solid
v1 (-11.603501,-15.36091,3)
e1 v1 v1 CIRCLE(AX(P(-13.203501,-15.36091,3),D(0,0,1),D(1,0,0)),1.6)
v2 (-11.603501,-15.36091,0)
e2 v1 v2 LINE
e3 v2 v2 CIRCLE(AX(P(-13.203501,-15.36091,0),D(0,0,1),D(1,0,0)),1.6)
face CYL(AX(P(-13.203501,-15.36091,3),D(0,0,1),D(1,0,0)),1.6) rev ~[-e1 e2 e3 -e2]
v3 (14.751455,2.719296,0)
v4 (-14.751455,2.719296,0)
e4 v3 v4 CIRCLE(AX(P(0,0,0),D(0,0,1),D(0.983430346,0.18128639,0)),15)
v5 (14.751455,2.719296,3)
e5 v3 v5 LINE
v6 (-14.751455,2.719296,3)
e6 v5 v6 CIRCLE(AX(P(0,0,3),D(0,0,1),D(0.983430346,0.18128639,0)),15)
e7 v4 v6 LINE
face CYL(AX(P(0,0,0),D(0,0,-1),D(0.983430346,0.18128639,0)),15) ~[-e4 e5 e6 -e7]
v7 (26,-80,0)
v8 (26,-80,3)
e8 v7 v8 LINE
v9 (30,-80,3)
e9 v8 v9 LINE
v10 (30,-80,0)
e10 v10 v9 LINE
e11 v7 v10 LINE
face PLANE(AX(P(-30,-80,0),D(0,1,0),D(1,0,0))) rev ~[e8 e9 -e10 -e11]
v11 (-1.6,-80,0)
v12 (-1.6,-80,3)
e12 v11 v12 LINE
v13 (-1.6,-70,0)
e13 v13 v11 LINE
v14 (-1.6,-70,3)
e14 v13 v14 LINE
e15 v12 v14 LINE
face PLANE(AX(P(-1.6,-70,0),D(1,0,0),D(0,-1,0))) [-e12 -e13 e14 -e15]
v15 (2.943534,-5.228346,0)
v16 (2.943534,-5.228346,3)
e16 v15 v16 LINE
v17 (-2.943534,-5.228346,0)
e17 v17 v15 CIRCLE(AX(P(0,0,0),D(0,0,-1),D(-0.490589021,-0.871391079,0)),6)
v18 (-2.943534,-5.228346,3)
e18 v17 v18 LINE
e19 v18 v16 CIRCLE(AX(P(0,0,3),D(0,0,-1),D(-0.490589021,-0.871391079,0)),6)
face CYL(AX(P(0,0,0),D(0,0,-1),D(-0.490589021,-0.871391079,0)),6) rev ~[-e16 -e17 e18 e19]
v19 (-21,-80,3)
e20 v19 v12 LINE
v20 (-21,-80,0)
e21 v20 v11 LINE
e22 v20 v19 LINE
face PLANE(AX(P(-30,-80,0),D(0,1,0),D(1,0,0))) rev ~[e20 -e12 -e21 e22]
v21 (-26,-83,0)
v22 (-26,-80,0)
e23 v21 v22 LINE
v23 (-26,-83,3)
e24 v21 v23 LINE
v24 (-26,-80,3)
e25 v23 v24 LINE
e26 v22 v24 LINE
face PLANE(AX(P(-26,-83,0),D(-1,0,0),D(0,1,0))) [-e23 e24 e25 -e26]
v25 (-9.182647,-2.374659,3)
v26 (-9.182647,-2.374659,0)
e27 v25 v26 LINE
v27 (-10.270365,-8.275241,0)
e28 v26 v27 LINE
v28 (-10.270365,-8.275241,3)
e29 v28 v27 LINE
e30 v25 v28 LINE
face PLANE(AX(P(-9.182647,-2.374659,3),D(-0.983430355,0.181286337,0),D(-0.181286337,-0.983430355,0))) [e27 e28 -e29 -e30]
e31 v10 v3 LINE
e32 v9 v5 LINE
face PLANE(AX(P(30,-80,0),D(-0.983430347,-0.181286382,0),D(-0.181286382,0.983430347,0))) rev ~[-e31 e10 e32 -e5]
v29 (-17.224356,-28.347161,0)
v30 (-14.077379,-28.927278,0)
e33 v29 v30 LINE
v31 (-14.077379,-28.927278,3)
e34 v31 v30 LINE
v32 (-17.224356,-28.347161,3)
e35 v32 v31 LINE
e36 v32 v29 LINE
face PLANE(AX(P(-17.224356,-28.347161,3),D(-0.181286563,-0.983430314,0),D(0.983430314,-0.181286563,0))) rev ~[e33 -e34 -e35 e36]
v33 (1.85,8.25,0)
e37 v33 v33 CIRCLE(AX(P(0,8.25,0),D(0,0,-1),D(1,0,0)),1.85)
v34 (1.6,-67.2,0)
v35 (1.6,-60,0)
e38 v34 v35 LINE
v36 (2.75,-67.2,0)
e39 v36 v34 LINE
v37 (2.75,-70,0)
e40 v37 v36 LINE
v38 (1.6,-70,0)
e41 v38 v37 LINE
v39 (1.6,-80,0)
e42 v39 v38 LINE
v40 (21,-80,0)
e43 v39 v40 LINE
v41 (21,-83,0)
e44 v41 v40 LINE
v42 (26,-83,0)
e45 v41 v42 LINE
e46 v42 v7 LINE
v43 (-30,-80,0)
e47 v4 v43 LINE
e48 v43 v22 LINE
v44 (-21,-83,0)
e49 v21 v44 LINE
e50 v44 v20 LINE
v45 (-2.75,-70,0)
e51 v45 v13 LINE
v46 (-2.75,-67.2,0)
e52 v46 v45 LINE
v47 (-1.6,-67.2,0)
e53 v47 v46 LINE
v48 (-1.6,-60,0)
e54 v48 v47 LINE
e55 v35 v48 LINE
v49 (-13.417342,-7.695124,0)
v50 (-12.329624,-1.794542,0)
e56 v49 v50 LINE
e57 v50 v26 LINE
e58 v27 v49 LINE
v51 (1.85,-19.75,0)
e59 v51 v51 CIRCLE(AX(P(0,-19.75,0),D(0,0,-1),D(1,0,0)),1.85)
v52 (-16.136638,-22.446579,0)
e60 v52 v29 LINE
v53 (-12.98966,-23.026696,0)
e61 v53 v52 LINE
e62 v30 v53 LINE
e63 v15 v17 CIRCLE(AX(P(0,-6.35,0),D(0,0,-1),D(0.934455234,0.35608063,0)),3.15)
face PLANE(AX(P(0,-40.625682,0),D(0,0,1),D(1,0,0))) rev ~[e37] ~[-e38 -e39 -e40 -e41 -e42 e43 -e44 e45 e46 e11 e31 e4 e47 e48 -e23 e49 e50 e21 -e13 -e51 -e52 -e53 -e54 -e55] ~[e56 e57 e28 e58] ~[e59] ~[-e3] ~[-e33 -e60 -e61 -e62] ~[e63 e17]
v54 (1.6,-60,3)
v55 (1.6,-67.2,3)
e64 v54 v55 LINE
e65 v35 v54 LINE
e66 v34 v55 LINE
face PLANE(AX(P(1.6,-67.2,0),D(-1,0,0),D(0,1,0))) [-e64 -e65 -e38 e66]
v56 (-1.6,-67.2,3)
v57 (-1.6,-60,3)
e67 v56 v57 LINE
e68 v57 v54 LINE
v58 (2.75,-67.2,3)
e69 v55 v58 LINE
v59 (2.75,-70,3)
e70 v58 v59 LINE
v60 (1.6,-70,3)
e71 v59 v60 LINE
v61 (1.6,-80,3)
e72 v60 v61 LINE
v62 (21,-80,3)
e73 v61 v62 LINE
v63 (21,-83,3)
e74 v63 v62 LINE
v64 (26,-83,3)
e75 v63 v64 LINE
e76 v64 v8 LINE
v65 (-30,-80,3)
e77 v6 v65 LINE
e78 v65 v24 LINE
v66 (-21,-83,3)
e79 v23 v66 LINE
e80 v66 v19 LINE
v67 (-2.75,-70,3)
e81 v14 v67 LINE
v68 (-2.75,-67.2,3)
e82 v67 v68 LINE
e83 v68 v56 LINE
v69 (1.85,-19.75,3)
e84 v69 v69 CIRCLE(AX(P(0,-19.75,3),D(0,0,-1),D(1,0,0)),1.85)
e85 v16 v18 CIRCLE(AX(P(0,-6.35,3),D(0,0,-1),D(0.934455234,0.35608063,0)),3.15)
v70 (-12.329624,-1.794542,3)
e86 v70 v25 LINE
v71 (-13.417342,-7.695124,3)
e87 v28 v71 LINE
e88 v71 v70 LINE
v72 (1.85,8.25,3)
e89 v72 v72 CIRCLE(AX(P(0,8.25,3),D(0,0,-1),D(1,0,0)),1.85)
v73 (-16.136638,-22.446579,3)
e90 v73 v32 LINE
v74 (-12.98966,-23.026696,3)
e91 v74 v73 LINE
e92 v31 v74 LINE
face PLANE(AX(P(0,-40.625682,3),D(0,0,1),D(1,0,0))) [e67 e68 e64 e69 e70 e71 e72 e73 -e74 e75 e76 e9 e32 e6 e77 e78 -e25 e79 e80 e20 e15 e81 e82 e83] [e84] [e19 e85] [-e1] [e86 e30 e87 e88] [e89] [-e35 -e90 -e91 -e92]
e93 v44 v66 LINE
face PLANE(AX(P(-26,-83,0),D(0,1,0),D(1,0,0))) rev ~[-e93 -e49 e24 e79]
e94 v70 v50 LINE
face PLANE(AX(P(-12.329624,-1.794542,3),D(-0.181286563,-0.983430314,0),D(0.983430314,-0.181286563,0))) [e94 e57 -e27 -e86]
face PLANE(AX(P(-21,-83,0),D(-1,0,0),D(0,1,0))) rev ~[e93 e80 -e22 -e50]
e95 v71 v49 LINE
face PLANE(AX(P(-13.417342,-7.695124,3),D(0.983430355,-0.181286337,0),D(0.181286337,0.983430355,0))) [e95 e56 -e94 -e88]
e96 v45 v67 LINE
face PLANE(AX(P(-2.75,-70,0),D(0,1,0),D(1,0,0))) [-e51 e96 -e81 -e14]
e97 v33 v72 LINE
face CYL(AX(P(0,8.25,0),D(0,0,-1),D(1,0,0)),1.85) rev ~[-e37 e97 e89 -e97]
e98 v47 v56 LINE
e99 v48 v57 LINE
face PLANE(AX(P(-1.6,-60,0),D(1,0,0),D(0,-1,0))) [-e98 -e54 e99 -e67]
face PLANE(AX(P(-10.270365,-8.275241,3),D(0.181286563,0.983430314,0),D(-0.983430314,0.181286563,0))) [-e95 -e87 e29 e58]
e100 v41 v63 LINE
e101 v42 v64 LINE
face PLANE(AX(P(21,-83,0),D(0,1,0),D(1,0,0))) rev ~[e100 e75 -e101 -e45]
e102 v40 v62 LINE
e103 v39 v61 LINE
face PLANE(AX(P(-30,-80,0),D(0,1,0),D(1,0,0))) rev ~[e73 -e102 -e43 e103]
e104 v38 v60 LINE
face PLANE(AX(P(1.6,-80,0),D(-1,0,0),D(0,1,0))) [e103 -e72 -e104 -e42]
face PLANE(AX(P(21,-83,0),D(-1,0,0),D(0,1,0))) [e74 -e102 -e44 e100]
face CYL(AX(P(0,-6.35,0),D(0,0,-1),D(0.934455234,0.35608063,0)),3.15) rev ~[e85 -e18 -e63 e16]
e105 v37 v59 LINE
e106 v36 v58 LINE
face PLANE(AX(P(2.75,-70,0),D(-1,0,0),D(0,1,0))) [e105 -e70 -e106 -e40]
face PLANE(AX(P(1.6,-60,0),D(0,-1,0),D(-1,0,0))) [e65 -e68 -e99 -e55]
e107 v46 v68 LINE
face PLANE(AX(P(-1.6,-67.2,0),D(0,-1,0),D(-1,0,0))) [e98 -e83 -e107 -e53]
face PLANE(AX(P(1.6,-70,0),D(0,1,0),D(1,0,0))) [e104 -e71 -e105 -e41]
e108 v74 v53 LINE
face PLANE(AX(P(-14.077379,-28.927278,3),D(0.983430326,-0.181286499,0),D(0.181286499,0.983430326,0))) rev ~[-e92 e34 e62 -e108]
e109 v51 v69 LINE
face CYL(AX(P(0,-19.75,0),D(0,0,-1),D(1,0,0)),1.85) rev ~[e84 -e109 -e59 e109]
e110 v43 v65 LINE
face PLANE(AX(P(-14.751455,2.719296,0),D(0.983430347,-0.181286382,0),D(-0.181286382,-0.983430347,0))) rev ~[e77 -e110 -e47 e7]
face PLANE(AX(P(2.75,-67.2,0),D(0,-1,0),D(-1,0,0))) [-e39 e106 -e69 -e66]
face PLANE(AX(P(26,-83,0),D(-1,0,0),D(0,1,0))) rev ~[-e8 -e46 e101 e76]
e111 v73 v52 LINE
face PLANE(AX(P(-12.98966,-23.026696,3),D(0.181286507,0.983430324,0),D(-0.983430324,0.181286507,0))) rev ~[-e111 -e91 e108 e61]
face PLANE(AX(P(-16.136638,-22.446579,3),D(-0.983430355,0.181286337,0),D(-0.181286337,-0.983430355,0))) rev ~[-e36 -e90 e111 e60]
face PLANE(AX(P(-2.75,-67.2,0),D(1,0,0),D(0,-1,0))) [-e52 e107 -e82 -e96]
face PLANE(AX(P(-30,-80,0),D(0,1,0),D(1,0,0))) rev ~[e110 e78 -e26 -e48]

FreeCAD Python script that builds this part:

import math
import FreeCAD as App
import Part
import Sketcher
from FreeCAD import Vector
Q = App.Units.Quantity

doc = App.newDocument("Part")
body = doc.addObject("PartDesign::Body", "Body")

# Sketch on XY plane
sketch1 = doc.addObject("Sketcher::SketchObject", "Sketch")
body.addObject(sketch1)
sketch1.AttachmentSupport = (doc.XY_Plane, [""])
sketch1.MapMode = "FlatFace"
sketch1.addGeometry([
    Part.ArcOfCircle(Part.Circle(Vector(0, 0, 0), Vector(0, 0, 1), 15), math.radians(10), math.radians(170)),
    Part.LineSegment(Vector(-15, 3, 0), Vector(-30, -80, 0)),
    Part.LineSegment(Vector(-30, -80, 0), Vector(30, -80, 0)),
    Part.LineSegment(Vector(30, -80, 0), Vector(15, 3, 0)),
], False)
sketch1.addConstraint([
    Sketcher.Constraint("Tangent", 0, 2, 1, 1),
    Sketcher.Constraint("Coincident", 1, 2, 2, 1),
    Sketcher.Constraint("Coincident", 2, 2, 3, 1),
    Sketcher.Constraint("Tangent", 3, 2, 0, 1),
    Sketcher.Constraint("Horizontal", 2),
    Sketcher.Constraint("Coincident", 0, 3, -1, 1),
    Sketcher.Constraint("Horizontal", 0, 2, 3, 2),
    Sketcher.Constraint("Radius", 0, Q("15 mm")),
    Sketcher.Constraint("DistanceX", 2, 1, 2, 2, Q("60 mm")),
    Sketcher.Constraint("DistanceY", 1, 2, -1, 1, Q("80 mm")),
])
pad1 = doc.addObject("PartDesign::Pad", "Pad")
body.addObject(pad1)
pad1.Profile = sketch1
pad1.Length = 3

# Sketch on XY plane
sketch2 = doc.addObject("Sketcher::SketchObject", "Sketch001")
body.addObject(sketch2)
sketch2.AttachmentSupport = (doc.XY_Plane, [""])
sketch2.MapMode = "FlatFace"
sketch2.addGeometry([
    Part.LineSegment(Vector(-26, -80, 0), Vector(-26, -83, 0)),  # 0
    Part.LineSegment(Vector(-26, -83, 0), Vector(-21, -83, 0)),  # 1
    Part.LineSegment(Vector(-21, -83, 0), Vector(-21, -80, 0)),  # 2
    Part.LineSegment(Vector(-21, -80, 0), Vector(-26, -80, 0)),  # 3
    Part.LineSegment(Vector(21, -80, 0), Vector(21, -83, 0)),  # 4
    Part.LineSegment(Vector(21, -83, 0), Vector(26, -83, 0)),  # 5
    Part.LineSegment(Vector(26, -83, 0), Vector(26, -80, 0)),  # 6
    Part.LineSegment(Vector(26, -80, 0), Vector(21, -80, 0)),  # 7
], False)
sketch2.addConstraint([
    Sketcher.Constraint("Coincident", 0, 2, 1, 1),
    Sketcher.Constraint("Coincident", 1, 2, 2, 1),
    Sketcher.Constraint("Coincident", 2, 2, 3, 1),
    Sketcher.Constraint("Coincident", 3, 2, 0, 1),
    Sketcher.Constraint("Coincident", 4, 2, 5, 1),
    Sketcher.Constraint("Coincident", 5, 2, 6, 1),
    Sketcher.Constraint("Coincident", 6, 2, 7, 1),
    Sketcher.Constraint("Coincident", 7, 2, 4, 1),
    Sketcher.Constraint("Vertical", 0),
    Sketcher.Constraint("Horizontal", 1),
    Sketcher.Constraint("Vertical", 2),
    Sketcher.Constraint("Horizontal", 3),
    Sketcher.Constraint("Vertical", 4),
    Sketcher.Constraint("Horizontal", 5),
    Sketcher.Constraint("Vertical", 6),
    Sketcher.Constraint("Horizontal", 7),
    Sketcher.Constraint("Symmetric", 1, 2, 4, 2, -2),
    Sketcher.Constraint("Symmetric", 3, 2, 6, 2, -2),
    Sketcher.Constraint("DistanceX", 1, 1, 1, 2, Q("5 mm")),
    Sketcher.Constraint("DistanceY", 0, 2, 0, 1, Q("3 mm")),
    Sketcher.Constraint("DistanceX", 0, 2, -1, 1, Q("26 mm")),
    Sketcher.Constraint("DistanceY", 0, 2, -1, 1, Q("83 mm")),
])
pad2 = doc.addObject("PartDesign::Pad", "Pad001")
body.addObject(pad2)
pad2.Profile = sketch2
pad2.Length = 3

# Sketch on XY plane
sketch3 = doc.addObject("Sketcher::SketchObject", "Sketch002")
body.addObject(sketch3)
sketch3.AttachmentSupport = (doc.XY_Plane, [""])
sketch3.MapMode = "FlatFace"
sketch3.addGeometry([
    Part.Circle(Vector(0, 8.2, 0), Vector(0, 0, 1), 1.9),
    Part.Circle(Vector(0, -19.8, 0), Vector(0, 0, 1), 1.9),
    Part.ArcOfCircle(Part.Circle(Vector(0, 0, 0), Vector(0, 0, 1), 6), math.radians(-61), math.radians(241)),
    Part.ArcOfCircle(Part.Circle(Vector(0, -6.3, 0), Vector(0, 0, 1), 3.2), math.radians(159), math.radians(381)),
], False)
sketch3.addConstraint([
    Sketcher.Constraint("Coincident", 2, 1, 3, 2),
    Sketcher.Constraint("Coincident", 3, 1, 2, 2),
    Sketcher.Constraint("Coincident", 2, 3, -1, 1),
    Sketcher.Constraint("Equal", 0, 1),
    Sketcher.Constraint("PointOnObject", 0, 3, -2),
    Sketcher.Constraint("PointOnObject", 1, 3, -2),
    Sketcher.Constraint("PointOnObject", 3, 3, -2),
    Sketcher.Constraint("Radius", 2, Q("6 mm")),
    Sketcher.Constraint("Diameter", 0, Q("3.7 mm")),
    Sketcher.Constraint("Radius", 3, Q("3.15 mm")),
    Sketcher.Constraint("DistanceY", 1, 3, 0, 3, Q("28 mm")),
    Sketcher.Constraint("DistanceY", 1, 3, 3, 3, Q("13.4 mm")),
    Sketcher.Constraint("DistanceY", -1, 1, 0, 3, Q("8.25 mm")),
])
pocket1 = doc.addObject("PartDesign::Pocket", "Pocket")
body.addObject(pocket1)
pocket1.Profile = sketch3
pocket1.Type = "ThroughAll"
pocket1.Reversed = True

# Sketch on XY plane
sketch4 = doc.addObject("Sketcher::SketchObject", "Sketch003")
body.addObject(sketch4)
sketch4.AttachmentSupport = (doc.XY_Plane, [""])
sketch4.MapMode = "FlatFace"
sketch4.addGeometry([
    Part.LineSegment(Vector(1.6, -80, 0), Vector(-1.6, -80, 0)),  # 0
    Part.LineSegment(Vector(-1.6, -80, 0), Vector(-1.6, -70, 0)),  # 1
    Part.LineSegment(Vector(-1.6, -70, 0), Vector(-2.8, -70, 0)),  # 2
    Part.LineSegment(Vector(-2.8, -70, 0), Vector(-2.8, -67.2, 0)),  # 3
    Part.LineSegment(Vector(-2.8, -67.2, 0), Vector(-1.6, -67.2, 0)),  # 4
    Part.LineSegment(Vector(-1.6, -67.2, 0), Vector(-1.6, -60, 0)),  # 5
    Part.LineSegment(Vector(-1.6, -60, 0), Vector(1.6, -60, 0)),  # 6
    Part.LineSegment(Vector(1.6, -60, 0), Vector(1.6, -67.2, 0)),  # 7
    Part.LineSegment(Vector(1.6, -67.2, 0), Vector(2.8, -67.2, 0)),  # 8
    Part.LineSegment(Vector(2.8, -67.2, 0), Vector(2.8, -70, 0)),  # 9
    Part.LineSegment(Vector(2.8, -70, 0), Vector(1.6, -70, 0)),  # 10
    Part.LineSegment(Vector(1.6, -70, 0), Vector(1.6, -80, 0)),  # 11
], False)
sketch4.addConstraint([
    Sketcher.Constraint("Coincident", 0, 2, 1, 1),
    Sketcher.Constraint("Coincident", 1, 2, 2, 1),
    Sketcher.Constraint("Coincident", 2, 2, 3, 1),
    Sketcher.Constraint("Coincident", 3, 2, 4, 1),
    Sketcher.Constraint("Coincident", 4, 2, 5, 1),
    Sketcher.Constraint("Coincident", 5, 2, 6, 1),
    Sketcher.Constraint("Coincident", 6, 2, 7, 1),
    Sketcher.Constraint("Coincident", 7, 2, 8, 1),
    Sketcher.Constraint("Coincident", 8, 2, 9, 1),
    Sketcher.Constraint("Coincident", 9, 2, 10, 1),
    Sketcher.Constraint("Coincident", 10, 2, 11, 1),
    Sketcher.Constraint("Coincident", 11, 2, 0, 1),
    Sketcher.Constraint("Horizontal", 0),
    Sketcher.Constraint("Vertical", 1),
    Sketcher.Constraint("Horizontal", 2),
    Sketcher.Constraint("Vertical", 3),
    Sketcher.Constraint("Horizontal", 4),
    Sketcher.Constraint("Vertical", 5),
    Sketcher.Constraint("Horizontal", 6),
    Sketcher.Constraint("Vertical", 7),
    Sketcher.Constraint("Horizontal", 8),
    Sketcher.Constraint("Vertical", 9),
    Sketcher.Constraint("Horizontal", 10),
    Sketcher.Constraint("Vertical", 11),
    Sketcher.Constraint("Symmetric", 4, 2, 7, 2, -2),
    Sketcher.Constraint("Symmetric", 2, 2, 9, 2, -2),
    Sketcher.Constraint("Vertical", 1, 2, 4, 2),
    Sketcher.Constraint("Vertical", 7, 2, 10, 2),
    Sketcher.Constraint("DistanceY", 1, 1, 1, 2, Q("10 mm")),
    Sketcher.Constraint("DistanceX", 0, 2, 0, 1, Q("3.2 mm")),
    Sketcher.Constraint("DistanceY", 3, 1, 3, 2, Q("2.8 mm")),
    Sketcher.Constraint("DistanceY", 5, 1, 5, 2, Q("7.2 mm")),
    Sketcher.Constraint("DistanceY", 0, 2, -1, 1, Q("80 mm")),
    Sketcher.Constraint("DistanceX", 2, 2, 2, 1, Q("1.15 mm")),
])
pocket2 = doc.addObject("PartDesign::Pocket", "Pocket001")
body.addObject(pocket2)
pocket2.Profile = sketch4
pocket2.Type = "ThroughAll"
pocket2.Reversed = True

# Sketch on XY plane
sketch5 = doc.addObject("Sketcher::SketchObject", "Sketch004")
body.addObject(sketch5)
sketch5.AttachmentSupport = (doc.XY_Plane, [""])
sketch5.MapMode = "FlatFace"
sketch5.AttachmentOffset = App.Placement(Vector(0, 0, 3), App.Rotation())
sketch5.addGeometry([
    Part.Circle(Vector(-13.2, -15.4, 0), Vector(0, 0, 1), 1.6),  # 0
    Part.LineSegment(Vector(-12.3, -1.8, 0), Vector(-13.4, -7.7, 0)),  # 1
    Part.LineSegment(Vector(-13.4, -7.7, 0), Vector(-10.3, -8.3, 0)),  # 2
    Part.LineSegment(Vector(-10.3, -8.3, 0), Vector(-9.2, -2.4, 0)),  # 3
    Part.LineSegment(Vector(-9.2, -2.4, 0), Vector(-12.3, -1.8, 0)),  # 4
    Part.LineSegment(Vector(-13, -23, 0), Vector(-16.1, -22.4, 0)),  # 5
    Part.LineSegment(Vector(-16.1, -22.4, 0), Vector(-17.2, -28.3, 0)),  # 6
    Part.LineSegment(Vector(-17.2, -28.3, 0), Vector(-14.1, -28.9, 0)),  # 7
    Part.LineSegment(Vector(-14.1, -28.9, 0), Vector(-13, -23, 0)),  # 8
], False)
sketch5.addConstraint([
    Sketcher.Constraint("Coincident", 1, 2, 2, 1),
    Sketcher.Constraint("Coincident", 2, 2, 3, 1),
    Sketcher.Constraint("Coincident", 3, 2, 4, 1),
    Sketcher.Constraint("Coincident", 4, 2, 1, 1),
    Sketcher.Constraint("Coincident", 5, 2, 6, 1),
    Sketcher.Constraint("Coincident", 6, 2, 7, 1),
    Sketcher.Constraint("Coincident", 7, 2, 8, 1),
    Sketcher.Constraint("Coincident", 8, 2, 5, 1),
    Sketcher.Constraint("Perpendicular", 1, 2),
    Sketcher.Constraint("Perpendicular", 2, 3),
    Sketcher.Constraint("Perpendicular", 3, 4),
    Sketcher.Constraint("Parallel", 4, 5),
    Sketcher.Constraint("Perpendicular", 5, 6),
    Sketcher.Constraint("Perpendicular", 6, 7),
    Sketcher.Constraint("Perpendicular", 7, 8),
    Sketcher.Constraint("Equal", 4, 5),
    Sketcher.Constraint("Equal", 3, 6),
    Sketcher.Constraint("Diameter", 0, Q("3.2 mm")),
    Sketcher.Constraint("Distance", 1, Q("6 mm")),
    Sketcher.Constraint("Distance", 2, Q("3.2 mm")),
    Sketcher.Constraint("DistanceX", 0, 3, -1, 1, Q("13.203501 mm")),
    Sketcher.Constraint("DistanceY", 2, 2, 4, 2, Q("6.480699 mm")),
    Sketcher.Constraint("DistanceY", 0, 3, -1, 1, Q("15.36091 mm")),
    Sketcher.Constraint("DistanceY", 2, 2, -1, 1, Q("8.275241 mm")),
    Sketcher.Constraint("DistanceX", 5, 2, -1, 1, Q("16.136638 mm")),
    Sketcher.Constraint("DistanceY", 5, 2, -1, 1, Q("22.446579 mm")),
    Sketcher.Constraint("DistanceX", 1, 2, 0, 3, Q("0.213841 mm")),
])
pocket3 = doc.addObject("PartDesign::Pocket", "Pocket002")
body.addObject(pocket3)
pocket3.Profile = sketch5
pocket3.Type = "ThroughAll"

doc.recompute()
